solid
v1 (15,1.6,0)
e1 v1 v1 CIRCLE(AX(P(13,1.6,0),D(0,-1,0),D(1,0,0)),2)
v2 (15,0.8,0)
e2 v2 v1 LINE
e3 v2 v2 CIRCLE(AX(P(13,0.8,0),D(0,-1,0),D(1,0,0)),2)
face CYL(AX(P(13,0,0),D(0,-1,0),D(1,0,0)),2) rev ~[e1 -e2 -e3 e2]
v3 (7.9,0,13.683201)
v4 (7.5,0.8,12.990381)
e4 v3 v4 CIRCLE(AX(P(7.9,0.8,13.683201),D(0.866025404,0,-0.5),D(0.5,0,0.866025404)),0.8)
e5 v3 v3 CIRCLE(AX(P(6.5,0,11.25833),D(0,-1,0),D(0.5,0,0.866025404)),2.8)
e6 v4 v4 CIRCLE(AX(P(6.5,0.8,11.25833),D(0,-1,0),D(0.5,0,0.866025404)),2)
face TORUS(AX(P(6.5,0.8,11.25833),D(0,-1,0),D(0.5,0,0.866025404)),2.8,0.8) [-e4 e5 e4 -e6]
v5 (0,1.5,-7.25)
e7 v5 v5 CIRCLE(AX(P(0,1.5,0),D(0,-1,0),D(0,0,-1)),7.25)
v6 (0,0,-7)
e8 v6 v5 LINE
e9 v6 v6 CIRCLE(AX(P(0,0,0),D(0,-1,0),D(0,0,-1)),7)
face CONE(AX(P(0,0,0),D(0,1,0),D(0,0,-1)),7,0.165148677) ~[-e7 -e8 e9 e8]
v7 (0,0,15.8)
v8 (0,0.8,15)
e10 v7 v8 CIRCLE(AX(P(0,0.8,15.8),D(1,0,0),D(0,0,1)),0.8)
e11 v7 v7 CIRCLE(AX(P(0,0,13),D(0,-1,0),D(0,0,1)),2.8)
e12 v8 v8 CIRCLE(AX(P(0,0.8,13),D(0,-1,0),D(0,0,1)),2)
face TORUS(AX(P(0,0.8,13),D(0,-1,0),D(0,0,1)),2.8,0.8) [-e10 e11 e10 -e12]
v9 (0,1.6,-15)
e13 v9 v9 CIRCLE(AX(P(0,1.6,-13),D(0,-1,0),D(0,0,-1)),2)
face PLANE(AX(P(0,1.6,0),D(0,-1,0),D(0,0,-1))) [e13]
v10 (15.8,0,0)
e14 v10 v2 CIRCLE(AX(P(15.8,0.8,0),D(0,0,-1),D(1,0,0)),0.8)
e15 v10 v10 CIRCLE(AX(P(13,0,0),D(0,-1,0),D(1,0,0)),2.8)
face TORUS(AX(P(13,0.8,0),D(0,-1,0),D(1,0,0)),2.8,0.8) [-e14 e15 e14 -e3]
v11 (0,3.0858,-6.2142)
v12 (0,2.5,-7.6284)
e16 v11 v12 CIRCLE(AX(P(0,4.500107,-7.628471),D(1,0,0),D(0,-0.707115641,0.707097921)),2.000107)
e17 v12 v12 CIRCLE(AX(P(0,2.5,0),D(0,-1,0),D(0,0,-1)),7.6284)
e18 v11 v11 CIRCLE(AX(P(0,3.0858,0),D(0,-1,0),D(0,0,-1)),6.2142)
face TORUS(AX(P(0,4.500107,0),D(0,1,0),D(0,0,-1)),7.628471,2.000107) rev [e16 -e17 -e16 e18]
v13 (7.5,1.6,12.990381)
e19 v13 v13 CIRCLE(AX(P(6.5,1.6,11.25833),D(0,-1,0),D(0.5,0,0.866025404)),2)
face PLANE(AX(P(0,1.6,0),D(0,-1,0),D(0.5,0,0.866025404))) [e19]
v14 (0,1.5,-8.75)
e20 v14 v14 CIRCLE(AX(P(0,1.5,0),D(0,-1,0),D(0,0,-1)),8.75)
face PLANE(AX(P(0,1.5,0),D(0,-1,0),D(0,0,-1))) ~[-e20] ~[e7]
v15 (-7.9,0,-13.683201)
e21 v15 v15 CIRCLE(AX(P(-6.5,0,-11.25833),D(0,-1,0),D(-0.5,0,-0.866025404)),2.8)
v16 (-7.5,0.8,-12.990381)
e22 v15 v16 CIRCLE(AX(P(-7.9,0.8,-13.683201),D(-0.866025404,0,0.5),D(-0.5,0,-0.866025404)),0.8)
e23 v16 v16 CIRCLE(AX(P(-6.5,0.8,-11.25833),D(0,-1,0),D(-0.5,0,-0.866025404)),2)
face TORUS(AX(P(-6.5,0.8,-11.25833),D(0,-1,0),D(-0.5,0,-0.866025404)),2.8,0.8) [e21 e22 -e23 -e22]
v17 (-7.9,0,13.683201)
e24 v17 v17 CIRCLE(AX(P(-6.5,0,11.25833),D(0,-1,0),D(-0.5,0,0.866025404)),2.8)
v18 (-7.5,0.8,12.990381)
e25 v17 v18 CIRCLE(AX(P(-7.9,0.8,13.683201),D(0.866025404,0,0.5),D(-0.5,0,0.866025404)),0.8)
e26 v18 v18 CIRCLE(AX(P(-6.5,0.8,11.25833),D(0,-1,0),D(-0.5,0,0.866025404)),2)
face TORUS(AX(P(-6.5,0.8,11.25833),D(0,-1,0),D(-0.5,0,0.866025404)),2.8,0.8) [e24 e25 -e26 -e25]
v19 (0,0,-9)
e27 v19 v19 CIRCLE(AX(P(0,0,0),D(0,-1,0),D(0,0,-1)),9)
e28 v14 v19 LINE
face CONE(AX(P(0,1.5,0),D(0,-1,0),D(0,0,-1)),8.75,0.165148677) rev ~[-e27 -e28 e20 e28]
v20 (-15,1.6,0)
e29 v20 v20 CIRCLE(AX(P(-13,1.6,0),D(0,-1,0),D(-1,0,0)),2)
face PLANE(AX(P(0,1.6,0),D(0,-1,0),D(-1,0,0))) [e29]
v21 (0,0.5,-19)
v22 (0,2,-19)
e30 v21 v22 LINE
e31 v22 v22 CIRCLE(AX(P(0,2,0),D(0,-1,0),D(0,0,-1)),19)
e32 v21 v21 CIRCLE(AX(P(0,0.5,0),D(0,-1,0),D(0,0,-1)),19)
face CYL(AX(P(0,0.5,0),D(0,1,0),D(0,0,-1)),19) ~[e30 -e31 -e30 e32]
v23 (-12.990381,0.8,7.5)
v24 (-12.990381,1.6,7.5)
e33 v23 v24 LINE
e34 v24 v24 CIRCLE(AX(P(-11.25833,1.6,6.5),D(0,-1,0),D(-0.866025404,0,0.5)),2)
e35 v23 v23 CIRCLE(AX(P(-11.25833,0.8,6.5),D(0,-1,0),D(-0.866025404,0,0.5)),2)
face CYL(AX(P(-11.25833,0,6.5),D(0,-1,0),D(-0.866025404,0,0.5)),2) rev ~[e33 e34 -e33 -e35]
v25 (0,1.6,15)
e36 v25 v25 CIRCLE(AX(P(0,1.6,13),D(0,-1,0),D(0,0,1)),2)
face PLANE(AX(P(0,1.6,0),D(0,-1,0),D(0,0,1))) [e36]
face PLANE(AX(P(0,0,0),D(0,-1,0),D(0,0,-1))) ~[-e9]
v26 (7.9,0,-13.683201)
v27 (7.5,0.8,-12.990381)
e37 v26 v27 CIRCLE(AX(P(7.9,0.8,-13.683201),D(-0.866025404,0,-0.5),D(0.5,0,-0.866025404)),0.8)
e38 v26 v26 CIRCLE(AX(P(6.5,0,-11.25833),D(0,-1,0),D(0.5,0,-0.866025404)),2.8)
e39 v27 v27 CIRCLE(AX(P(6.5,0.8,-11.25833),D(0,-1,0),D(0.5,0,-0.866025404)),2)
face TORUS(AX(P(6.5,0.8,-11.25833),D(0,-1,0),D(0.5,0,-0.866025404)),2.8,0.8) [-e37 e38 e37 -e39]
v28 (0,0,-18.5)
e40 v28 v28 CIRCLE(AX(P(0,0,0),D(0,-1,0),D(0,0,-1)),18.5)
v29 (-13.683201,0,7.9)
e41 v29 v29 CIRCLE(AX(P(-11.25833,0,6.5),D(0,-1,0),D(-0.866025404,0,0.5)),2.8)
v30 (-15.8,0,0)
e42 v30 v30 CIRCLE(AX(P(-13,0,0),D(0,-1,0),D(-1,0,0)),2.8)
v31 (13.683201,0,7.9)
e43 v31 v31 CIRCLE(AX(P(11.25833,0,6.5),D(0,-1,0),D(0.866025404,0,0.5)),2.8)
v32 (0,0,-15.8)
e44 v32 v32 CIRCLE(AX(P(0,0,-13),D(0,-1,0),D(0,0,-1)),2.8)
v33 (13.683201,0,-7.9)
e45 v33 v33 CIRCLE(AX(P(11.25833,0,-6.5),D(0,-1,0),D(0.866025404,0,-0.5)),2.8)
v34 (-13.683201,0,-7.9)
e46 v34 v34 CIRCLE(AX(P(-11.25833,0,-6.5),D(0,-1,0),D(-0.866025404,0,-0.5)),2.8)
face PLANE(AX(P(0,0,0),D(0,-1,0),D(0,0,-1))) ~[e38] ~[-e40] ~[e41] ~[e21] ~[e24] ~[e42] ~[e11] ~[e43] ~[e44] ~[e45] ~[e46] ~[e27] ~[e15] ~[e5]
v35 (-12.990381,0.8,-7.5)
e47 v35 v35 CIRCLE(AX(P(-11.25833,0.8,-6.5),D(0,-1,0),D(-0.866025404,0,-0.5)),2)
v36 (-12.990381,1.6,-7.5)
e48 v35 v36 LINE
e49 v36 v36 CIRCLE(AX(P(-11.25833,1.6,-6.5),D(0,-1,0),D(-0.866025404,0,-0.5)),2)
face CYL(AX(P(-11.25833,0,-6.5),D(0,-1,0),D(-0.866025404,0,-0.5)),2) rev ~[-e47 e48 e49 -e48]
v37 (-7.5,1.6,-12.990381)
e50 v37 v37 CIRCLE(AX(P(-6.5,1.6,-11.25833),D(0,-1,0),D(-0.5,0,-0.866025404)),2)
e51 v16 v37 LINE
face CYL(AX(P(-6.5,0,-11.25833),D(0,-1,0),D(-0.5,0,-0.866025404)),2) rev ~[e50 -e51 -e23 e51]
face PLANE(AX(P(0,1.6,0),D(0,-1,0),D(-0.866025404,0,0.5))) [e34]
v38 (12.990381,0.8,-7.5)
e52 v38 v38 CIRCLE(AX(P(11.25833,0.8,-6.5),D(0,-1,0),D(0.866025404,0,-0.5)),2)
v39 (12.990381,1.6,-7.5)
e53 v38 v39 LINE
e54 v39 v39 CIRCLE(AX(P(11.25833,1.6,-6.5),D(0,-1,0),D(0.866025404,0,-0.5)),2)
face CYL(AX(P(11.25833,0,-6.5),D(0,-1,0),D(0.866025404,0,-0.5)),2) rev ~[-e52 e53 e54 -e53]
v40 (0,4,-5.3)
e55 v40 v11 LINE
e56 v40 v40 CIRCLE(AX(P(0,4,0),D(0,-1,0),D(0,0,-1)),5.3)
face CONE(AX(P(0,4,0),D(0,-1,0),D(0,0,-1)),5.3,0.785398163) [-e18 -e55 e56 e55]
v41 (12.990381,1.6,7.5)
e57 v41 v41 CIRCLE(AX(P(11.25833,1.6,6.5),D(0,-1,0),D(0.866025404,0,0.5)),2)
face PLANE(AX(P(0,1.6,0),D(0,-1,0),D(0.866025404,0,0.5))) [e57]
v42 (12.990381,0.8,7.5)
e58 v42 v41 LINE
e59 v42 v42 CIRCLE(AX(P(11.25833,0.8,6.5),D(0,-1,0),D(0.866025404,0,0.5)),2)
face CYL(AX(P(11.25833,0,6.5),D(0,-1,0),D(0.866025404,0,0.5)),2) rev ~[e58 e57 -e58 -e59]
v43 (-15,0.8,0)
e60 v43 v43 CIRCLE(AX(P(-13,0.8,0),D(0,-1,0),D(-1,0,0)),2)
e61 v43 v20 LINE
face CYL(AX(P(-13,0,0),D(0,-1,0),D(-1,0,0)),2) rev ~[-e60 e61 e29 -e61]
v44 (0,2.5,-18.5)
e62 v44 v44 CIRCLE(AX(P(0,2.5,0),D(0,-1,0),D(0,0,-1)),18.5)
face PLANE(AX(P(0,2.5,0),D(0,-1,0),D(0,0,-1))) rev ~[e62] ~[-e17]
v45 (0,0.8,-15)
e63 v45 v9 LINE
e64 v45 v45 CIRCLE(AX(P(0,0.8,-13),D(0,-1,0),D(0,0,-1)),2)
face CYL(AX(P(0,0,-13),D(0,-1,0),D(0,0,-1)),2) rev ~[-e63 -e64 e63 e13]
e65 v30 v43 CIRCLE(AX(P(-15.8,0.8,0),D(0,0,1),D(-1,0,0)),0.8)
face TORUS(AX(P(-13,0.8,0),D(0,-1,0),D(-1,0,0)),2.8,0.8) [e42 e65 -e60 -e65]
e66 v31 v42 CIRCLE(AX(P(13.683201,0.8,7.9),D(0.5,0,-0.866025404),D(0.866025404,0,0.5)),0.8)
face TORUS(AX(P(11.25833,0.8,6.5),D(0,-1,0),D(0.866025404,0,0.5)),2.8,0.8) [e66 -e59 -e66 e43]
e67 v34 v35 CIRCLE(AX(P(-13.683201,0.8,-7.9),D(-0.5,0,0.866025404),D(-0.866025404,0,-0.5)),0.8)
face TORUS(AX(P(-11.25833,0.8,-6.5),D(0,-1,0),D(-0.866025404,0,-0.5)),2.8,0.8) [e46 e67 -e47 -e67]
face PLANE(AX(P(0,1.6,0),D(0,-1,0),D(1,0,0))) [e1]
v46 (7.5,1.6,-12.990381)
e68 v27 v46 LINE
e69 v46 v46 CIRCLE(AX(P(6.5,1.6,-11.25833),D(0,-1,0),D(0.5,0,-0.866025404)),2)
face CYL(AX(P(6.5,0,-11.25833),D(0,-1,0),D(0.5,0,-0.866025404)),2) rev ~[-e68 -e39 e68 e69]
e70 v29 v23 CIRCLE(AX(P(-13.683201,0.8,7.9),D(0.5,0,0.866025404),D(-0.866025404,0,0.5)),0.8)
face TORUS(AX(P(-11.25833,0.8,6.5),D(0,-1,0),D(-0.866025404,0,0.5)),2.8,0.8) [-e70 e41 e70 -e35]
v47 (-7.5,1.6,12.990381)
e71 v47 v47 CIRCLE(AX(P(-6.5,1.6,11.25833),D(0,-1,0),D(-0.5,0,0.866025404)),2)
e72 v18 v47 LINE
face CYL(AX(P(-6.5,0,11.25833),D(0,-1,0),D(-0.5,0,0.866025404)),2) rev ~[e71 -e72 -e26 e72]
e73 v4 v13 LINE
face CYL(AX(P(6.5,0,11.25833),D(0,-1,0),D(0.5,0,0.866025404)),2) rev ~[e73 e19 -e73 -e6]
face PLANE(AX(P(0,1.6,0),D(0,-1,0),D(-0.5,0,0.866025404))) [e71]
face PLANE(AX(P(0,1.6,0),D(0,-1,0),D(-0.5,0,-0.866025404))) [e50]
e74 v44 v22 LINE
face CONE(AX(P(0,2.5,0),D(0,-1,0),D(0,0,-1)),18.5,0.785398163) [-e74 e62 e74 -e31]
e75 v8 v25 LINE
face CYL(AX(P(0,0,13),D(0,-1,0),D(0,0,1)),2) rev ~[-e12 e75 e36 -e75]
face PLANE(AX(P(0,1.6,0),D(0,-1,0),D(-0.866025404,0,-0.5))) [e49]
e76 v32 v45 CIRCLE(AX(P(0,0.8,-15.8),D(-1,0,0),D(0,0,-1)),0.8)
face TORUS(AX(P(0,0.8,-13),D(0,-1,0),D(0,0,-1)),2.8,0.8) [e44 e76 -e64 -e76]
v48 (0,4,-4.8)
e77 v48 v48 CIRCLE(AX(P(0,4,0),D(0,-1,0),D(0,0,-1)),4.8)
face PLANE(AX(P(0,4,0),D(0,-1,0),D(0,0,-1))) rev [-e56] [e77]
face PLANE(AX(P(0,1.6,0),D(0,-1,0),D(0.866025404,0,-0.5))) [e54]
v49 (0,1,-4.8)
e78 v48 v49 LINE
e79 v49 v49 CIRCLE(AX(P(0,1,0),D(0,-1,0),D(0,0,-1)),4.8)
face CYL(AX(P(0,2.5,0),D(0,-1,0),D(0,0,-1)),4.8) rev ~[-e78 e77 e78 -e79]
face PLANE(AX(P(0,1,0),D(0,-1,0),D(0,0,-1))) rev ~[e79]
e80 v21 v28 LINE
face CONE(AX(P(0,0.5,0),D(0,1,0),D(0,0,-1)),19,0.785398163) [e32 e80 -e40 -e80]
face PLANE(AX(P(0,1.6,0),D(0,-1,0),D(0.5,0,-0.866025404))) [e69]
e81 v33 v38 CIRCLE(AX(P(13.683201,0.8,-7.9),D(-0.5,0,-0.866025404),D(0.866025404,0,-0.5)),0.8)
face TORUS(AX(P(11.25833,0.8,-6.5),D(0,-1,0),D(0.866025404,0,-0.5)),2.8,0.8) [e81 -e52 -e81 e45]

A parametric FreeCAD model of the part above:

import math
import FreeCAD as App
import Part
import Sketcher

V = App.Vector


def edges_at(feature, points):
    """Names of the edges that pass closest to the given points."""
    edges = feature.Shape.Edges
    near = lambda p: min(range(len(edges)), key=lambda i: edges[i].distToShape(Part.Vertex(*p))[0])
    return sorted({f"Edge{near(p) + 1}" for p in points})

doc = App.newDocument("Part")
body = doc.addObject("PartDesign::Body", "Body")

sketch1 = body.newObject("Sketcher::SketchObject", "Sketch")
sketch1.AttachmentSupport = (doc.getObject("YZ_Plane"), [""])
sketch1.MapMode = "FlatFace"
sketch1.addGeometry([
    Part.LineSegment(V(1, 0, 0), V(0, 0, 0)),
    Part.LineSegment(V(0, 0, 0), V(0, -7, 0)),
    Part.LineSegment(V(0, -7, 0), V(1.5, -7.2, 0)),
    Part.LineSegment(V(1.5, -7.2, 0), V(1.5, -8.8, 0)),
    Part.LineSegment(V(1.5, -8.8, 0), V(0, -9, 0)),
    Part.LineSegment(V(0, -9, 0), V(0, -18.5, 0)),
    Part.LineSegment(V(0, -18.5, 0), V(0.5, -19, 0)),
    Part.LineSegment(V(0.5, -19, 0), V(2, -19, 0)),
    Part.LineSegment(V(2, -19, 0), V(2.5, -18.5, 0)),
    Part.LineSegment(V(2.5, -18.5, 0), V(2.5, -7.6, 0)),
    Part.ArcOfCircle(Part.Circle(V(4.5, -7.6, 0), V(0, 0, 1), 2), math.radians(135), math.radians(180)),
    Part.LineSegment(V(3.1, -6.2, 0), V(4, -5.3, 0)),
    Part.LineSegment(V(4, -5.3, 0), V(4, -4.8, 0)),
    Part.LineSegment(V(4, -4.8, 0), V(1, -4.8, 0)),
    Part.LineSegment(V(1, -4.8, 0), V(1, 0, 0)),
], False)
sketch1.addConstraint([
    Sketcher.Constraint("Coincident", 0, 2, 1, 1),
    Sketcher.Constraint("Coincident", 1, 2, 2, 1),
    Sketcher.Constraint("Coincident", 2, 2, 3, 1),
    Sketcher.Constraint("Coincident", 3, 2, 4, 1),
    Sketcher.Constraint("Coincident", 4, 2, 5, 1),
    Sketcher.Constraint("Coincident", 5, 2, 6, 1),
    Sketcher.Constraint("Coincident", 6, 2, 7, 1),
    Sketcher.Constraint("Coincident", 7, 2, 8, 1),
    Sketcher.Constraint("Coincident", 8, 2, 9, 1),
    Sketcher.Constraint("Tangent", 9, 2, 10, 2),
    Sketcher.Constraint("Tangent", 10, 1, 11, 1),
    Sketcher.Constraint("Coincident", 11, 2, 12, 1),
    Sketcher.Constraint("Coincident", 12, 2, 13, 1),
    Sketcher.Constraint("Coincident", 13, 2, 14, 1),
    Sketcher.Constraint("Coincident", 14, 2, 0, 1),
    Sketcher.Constraint("Horizontal", 0),
    Sketcher.Constraint("Vertical", 1),
    Sketcher.Constraint("Vertical", 3),
    Sketcher.Constraint("Vertical", 5),
    Sketcher.Constraint("Horizontal", 7),
    Sketcher.Constraint("Vertical", 9),
    Sketcher.Constraint("Vertical", 12),
    Sketcher.Constraint("Horizontal", 13),
    Sketcher.Constraint("Vertical", 14),
    Sketcher.Constraint("Coincident", 0, 2, -1, 1),
    Sketcher.Constraint("PointOnObject", 4, 2, -2),
    Sketcher.Constraint("Perpendicular", 6, 8),
    Sketcher.Constraint("Parallel", 8, 11),
    Sketcher.Constraint("Horizontal", 5, 2, 8, 2),
    Sketcher.Constraint("Equal", 7, 3),
    Sketcher.Constraint("Equal", 2, 4),
    Sketcher.Constraint("Equal", 6, 8),
    Sketcher.Constraint("Radius", 10, 2.0),
    Sketcher.Constraint("DistanceX", 0, 2, 0, 1, 1.0),
    Sketcher.Constraint("DistanceX", 7, 1, 7, 2, 1.5),
    Sketcher.Constraint("DistanceY", 12, 1, 12, 2, 0.5),
    Sketcher.Constraint("DistanceY", 14, 1, 14, 2, 4.8),
    Sketcher.Constraint("DistanceY", 6, 2, -1, 1, 19.0),
    Sketcher.Constraint("DistanceX", -1, 1, 7, 2, 2.0),
    Sketcher.Constraint("DistanceY", 4, 2, 1, 2, 2.0),
    Sketcher.Constraint("DistanceX", 6, 2, 3, 2, 1.0),
    Sketcher.Constraint("DistanceX", 11, 2, 10, 3, 0.5),
    Sketcher.Constraint("DistanceY", 1, 2, 1, 1, 7.0),
])
revolution = body.newObject("PartDesign::Revolution", "Revolution")
revolution.Profile = sketch1
revolution.ReferenceAxis = (sketch1, ["H_Axis"])
revolution.Angle = 360

sketch2 = body.newObject("Sketcher::SketchObject", "Sketch001")
sketch2.AttachmentSupport = (doc.getObject("XZ_Plane"), [""])
sketch2.MapMode = "FlatFace"
sketch2.addGeometry(Part.Circle(V(13, 0, 0), V(0, 0, 1), 2), False)
sketch2.addConstraint([
    Sketcher.Constraint("PointOnObject", 0, 3, -1),
    Sketcher.Constraint("Diameter", 0, 4.0),
    Sketcher.Constraint("DistanceX", -1, 1, 0, 3, 13.0),
])
pocket1 = body.newObject("PartDesign::Pocket", "Pocket")
pocket1.Profile = sketch2
pocket1.Length = 1.6
doc.recompute()

fillet = body.newObject("PartDesign::Fillet", "Fillet")
fillet.Base = (pocket1, edges_at(pocket1, [(11, 0, 0)]))
fillet.Radius = 0.8
doc.recompute()

polarpattern = body.newObject("PartDesign::PolarPattern", "PolarPattern")
polarpattern.Originals = [pocket1, fillet]
polarpattern.Axis = (doc.getObject("Y_Axis"), [""])
polarpattern.Angle = 360
polarpattern.Occurrences = 12
body.Tip = polarpattern

doc.recompute()
